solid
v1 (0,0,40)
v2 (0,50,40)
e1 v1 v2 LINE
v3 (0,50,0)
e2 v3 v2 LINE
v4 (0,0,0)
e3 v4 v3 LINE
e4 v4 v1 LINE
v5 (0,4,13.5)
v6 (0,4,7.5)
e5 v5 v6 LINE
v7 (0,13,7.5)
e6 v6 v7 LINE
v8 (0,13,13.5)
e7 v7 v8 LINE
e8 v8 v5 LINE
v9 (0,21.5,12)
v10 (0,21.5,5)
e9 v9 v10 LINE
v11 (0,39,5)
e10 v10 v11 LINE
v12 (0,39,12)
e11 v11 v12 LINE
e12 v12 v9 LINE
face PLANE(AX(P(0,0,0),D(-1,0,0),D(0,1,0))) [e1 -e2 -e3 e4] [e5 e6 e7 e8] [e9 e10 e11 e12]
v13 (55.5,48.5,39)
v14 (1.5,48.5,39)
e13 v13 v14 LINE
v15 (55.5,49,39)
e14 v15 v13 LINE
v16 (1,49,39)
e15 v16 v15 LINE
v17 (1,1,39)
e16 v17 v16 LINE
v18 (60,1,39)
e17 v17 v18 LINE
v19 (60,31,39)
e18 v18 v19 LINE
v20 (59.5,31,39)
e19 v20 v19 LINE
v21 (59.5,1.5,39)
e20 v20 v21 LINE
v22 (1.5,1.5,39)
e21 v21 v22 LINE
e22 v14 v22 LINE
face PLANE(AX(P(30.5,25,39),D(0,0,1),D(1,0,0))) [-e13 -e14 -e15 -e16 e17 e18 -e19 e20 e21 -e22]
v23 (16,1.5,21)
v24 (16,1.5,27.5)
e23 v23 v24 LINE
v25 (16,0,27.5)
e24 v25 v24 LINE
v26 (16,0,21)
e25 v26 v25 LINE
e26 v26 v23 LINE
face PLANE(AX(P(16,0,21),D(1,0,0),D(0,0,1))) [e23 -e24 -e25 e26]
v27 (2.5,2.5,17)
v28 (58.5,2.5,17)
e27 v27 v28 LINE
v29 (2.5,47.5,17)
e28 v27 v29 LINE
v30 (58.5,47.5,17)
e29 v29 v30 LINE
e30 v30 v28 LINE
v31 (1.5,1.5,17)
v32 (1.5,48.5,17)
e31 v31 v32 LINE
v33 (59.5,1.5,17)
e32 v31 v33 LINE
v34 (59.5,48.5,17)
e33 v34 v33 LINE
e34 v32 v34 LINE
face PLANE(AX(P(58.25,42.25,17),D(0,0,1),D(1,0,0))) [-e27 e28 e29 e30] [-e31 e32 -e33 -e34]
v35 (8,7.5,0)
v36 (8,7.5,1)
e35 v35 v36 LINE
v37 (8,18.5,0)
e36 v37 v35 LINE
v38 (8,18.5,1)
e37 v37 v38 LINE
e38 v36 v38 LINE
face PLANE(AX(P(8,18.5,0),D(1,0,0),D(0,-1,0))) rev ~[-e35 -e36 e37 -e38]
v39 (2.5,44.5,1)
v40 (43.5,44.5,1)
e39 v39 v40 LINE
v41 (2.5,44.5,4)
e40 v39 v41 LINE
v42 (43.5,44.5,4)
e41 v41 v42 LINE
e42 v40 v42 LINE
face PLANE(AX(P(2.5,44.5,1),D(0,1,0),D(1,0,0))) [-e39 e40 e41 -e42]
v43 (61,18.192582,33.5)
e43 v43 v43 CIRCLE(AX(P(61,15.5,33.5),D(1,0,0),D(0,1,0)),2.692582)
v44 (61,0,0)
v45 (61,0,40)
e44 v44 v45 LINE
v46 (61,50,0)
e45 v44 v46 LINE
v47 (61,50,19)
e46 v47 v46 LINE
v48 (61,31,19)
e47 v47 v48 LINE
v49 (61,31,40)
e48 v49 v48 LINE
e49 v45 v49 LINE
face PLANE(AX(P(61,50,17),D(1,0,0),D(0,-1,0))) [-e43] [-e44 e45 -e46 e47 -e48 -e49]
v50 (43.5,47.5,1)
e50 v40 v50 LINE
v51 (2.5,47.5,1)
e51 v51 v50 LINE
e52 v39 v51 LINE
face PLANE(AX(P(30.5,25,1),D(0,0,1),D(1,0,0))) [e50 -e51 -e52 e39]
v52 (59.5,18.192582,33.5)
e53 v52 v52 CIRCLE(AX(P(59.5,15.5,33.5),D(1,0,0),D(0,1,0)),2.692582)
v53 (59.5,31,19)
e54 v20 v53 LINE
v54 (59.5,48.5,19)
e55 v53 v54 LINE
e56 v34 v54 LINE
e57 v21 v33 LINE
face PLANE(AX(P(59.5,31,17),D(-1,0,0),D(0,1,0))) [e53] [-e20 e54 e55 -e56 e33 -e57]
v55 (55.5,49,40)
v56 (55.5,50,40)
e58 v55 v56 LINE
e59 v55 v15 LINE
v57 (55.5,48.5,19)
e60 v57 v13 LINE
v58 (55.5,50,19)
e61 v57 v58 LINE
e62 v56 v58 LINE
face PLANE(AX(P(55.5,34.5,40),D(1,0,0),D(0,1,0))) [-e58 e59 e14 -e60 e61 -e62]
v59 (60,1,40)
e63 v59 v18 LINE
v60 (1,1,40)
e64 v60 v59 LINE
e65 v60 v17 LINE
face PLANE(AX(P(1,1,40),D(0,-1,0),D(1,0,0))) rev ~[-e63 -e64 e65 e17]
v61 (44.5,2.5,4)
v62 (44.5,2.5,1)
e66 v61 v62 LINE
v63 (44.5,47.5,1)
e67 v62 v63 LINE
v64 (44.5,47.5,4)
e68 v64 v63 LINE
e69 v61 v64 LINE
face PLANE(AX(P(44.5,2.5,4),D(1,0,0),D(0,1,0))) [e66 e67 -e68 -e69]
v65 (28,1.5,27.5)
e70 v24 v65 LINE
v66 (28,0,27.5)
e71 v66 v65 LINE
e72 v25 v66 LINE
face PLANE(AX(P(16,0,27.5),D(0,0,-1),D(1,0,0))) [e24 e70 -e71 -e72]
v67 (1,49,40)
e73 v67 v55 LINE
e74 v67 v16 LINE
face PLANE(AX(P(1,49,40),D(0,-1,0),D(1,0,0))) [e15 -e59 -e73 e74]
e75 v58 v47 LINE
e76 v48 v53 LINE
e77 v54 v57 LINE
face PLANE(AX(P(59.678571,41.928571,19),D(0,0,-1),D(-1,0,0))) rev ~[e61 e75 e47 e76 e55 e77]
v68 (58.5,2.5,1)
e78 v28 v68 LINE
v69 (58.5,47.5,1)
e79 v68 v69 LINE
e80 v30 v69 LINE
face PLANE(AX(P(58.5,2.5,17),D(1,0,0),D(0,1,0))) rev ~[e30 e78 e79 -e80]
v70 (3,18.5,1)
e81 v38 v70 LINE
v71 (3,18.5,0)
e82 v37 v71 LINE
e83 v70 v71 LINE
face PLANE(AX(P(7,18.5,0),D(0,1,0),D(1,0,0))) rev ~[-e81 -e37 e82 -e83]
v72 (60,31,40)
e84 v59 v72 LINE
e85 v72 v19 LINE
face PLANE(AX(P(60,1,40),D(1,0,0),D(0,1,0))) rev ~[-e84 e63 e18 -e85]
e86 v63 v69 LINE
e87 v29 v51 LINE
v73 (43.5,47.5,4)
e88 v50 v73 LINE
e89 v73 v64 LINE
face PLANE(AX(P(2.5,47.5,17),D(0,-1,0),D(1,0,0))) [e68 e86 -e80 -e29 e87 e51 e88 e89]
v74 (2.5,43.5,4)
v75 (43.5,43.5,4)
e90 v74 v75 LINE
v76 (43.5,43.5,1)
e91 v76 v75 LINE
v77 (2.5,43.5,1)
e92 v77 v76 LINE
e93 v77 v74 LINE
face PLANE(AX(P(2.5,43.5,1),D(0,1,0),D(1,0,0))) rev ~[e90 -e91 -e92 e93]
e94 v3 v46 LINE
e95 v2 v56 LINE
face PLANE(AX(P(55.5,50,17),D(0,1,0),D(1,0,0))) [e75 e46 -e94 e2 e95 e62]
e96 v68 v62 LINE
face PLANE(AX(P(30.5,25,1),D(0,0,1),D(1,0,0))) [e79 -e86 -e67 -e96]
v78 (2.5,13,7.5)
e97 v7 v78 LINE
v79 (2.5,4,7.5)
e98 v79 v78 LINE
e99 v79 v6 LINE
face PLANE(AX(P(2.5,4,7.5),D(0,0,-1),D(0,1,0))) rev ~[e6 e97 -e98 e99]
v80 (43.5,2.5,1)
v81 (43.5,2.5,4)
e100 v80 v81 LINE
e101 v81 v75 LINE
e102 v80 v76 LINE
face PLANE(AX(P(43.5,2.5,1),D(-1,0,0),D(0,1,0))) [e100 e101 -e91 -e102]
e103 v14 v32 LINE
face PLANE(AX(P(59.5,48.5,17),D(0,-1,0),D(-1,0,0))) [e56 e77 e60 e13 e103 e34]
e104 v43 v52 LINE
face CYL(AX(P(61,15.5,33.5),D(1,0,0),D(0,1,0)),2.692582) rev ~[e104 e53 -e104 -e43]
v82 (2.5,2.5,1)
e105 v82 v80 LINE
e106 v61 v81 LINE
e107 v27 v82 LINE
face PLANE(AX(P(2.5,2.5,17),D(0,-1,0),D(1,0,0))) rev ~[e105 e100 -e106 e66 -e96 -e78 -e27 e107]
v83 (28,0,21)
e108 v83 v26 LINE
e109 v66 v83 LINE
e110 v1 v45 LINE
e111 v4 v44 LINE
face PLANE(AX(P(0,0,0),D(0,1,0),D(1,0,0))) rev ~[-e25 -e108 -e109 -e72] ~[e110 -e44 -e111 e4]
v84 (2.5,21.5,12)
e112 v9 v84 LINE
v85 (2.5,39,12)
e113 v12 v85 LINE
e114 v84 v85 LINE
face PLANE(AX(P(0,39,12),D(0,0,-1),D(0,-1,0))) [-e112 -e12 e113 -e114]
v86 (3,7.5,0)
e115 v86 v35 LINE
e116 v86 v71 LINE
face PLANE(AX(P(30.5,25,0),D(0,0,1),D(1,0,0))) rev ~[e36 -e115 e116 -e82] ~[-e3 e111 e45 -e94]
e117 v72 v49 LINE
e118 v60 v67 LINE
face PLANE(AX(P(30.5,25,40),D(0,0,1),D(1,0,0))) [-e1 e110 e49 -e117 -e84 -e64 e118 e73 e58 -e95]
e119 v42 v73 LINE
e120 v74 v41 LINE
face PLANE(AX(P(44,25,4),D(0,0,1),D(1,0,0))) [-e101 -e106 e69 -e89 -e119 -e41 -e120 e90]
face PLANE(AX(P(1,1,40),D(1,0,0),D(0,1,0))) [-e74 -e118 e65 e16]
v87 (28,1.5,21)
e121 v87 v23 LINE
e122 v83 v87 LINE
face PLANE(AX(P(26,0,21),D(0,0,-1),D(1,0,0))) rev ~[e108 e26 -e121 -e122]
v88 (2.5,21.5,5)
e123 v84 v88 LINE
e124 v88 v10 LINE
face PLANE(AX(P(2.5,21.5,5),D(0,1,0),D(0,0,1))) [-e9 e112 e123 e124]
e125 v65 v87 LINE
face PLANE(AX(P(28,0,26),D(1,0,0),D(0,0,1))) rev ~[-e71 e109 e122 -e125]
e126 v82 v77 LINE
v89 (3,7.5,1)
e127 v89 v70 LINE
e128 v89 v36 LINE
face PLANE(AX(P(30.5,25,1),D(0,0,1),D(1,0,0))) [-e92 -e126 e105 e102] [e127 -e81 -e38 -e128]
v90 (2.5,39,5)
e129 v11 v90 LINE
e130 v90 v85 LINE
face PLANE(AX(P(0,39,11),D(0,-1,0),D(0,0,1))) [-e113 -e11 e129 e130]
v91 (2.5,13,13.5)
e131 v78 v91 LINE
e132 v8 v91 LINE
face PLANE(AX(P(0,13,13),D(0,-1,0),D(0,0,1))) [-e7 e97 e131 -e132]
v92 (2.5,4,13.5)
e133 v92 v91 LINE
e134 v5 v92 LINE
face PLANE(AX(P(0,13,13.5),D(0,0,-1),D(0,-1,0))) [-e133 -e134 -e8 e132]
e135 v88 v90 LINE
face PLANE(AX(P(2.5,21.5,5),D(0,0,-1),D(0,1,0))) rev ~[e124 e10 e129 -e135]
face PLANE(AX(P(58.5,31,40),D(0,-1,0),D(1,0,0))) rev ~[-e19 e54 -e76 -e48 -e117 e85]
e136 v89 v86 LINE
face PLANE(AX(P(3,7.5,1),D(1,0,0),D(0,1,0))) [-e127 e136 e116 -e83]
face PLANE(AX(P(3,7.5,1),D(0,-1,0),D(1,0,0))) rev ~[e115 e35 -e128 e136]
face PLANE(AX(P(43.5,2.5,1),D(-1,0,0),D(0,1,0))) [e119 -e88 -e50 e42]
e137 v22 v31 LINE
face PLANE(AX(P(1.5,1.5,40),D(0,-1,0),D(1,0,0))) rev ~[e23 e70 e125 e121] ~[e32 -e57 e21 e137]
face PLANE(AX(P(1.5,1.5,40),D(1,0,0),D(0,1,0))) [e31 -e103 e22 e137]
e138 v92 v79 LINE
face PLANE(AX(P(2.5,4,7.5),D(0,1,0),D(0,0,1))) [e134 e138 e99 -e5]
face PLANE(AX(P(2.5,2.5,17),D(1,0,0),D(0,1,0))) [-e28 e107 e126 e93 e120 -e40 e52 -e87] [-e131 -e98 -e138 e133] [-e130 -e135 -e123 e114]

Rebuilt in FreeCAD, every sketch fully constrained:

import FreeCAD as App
import Part
import Sketcher
Q = App.Units.Quantity


def add_polygon(sketch, points):
    """Adds a closed chain of lines whose ends are joined by coincident constraints."""
    first, n = sketch.GeometryCount, len(points)
    for a, b in zip(points, points[1:] + points[:1]):
        sketch.addGeometry(Part.LineSegment(App.Vector(*a, 0), App.Vector(*b, 0)), False)
    for i in range(n):
        sketch.addConstraint(Sketcher.Constraint("Coincident", first + i, 2, first + (i + 1) % n, 1))

doc = App.newDocument("Part")
body = doc.addObject("PartDesign::Body", "Body")

sketch1 = doc.addObject("Sketcher::SketchObject", "Sketch")
body.addObject(sketch1)
sketch1.AttachmentSupport = (doc.XY_Plane, [""])
sketch1.MapMode = "FlatFace"
add_polygon(sketch1, [(0, 50), (0, 0), (61, 0), (61, 50)])
sketch1.addConstraint(Sketcher.Constraint("Vertical", 0))
sketch1.addConstraint(Sketcher.Constraint("Horizontal", 1))
sketch1.addConstraint(Sketcher.Constraint("Vertical", 2))
sketch1.addConstraint(Sketcher.Constraint("Horizontal", 3))
sketch1.addConstraint(Sketcher.Constraint("Coincident", 0, 2, -1, 1))
sketch1.addConstraint(Sketcher.Constraint("DistanceX", 1, 1, 1, 2, Q("61 mm")))
sketch1.addConstraint(Sketcher.Constraint("DistanceY", 0, 2, 0, 1, Q("50 mm")))
pad1 = doc.addObject("PartDesign::Pad", "Pad")
body.addObject(pad1)
pad1.Profile = sketch1
pad1.Length = 40

sketch2 = doc.addObject("Sketcher::SketchObject", "Sketch001")
body.addObject(sketch2)
sketch2.AttachmentSupport = (doc.XY_Plane, [""])
sketch2.MapMode = "FlatFace"
sketch2.AttachmentOffset = App.Placement(App.Vector(0, 0, 40), App.Rotation())
add_polygon(sketch2, [(2, 48), (2, 2), (60, 2), (60, 48)])
sketch2.addConstraint(Sketcher.Constraint("Vertical", 0))
sketch2.addConstraint(Sketcher.Constraint("Horizontal", 1))
sketch2.addConstraint(Sketcher.Constraint("Vertical", 2))
sketch2.addConstraint(Sketcher.Constraint("Horizontal", 3))
sketch2.addConstraint(Sketcher.Constraint("DistanceX", 1, 1, 1, 2, Q("58 mm")))
sketch2.addConstraint(Sketcher.Constraint("DistanceY", 0, 2, 0, 1, Q("47 mm")))
sketch2.addConstraint(Sketcher.Constraint("DistanceX", -1, 1, 0, 2, Q("1.5 mm")))
sketch2.addConstraint(Sketcher.Constraint("DistanceY", -1, 1, 0, 2, Q("1.5 mm")))
pocket1 = doc.addObject("PartDesign::Pocket", "Pocket")
body.addObject(pocket1)
pocket1.Profile = sketch2
pocket1.Length = 23

sketch3 = doc.addObject("Sketcher::SketchObject", "Sketch002")
body.addObject(sketch3)
sketch3.AttachmentSupport = (doc.XY_Plane, [""])
sketch3.MapMode = "FlatFace"
sketch3.AttachmentOffset = App.Placement(App.Vector(0, 0, 17), App.Rotation())
add_polygon(sketch3, [(2, 48), (2, 2), (58, 2), (58, 48)])
sketch3.addConstraint(Sketcher.Constraint("Vertical", 0))
sketch3.addConstraint(Sketcher.Constraint("Horizontal", 1))
sketch3.addConstraint(Sketcher.Constraint("Vertical", 2))
sketch3.addConstraint(Sketcher.Constraint("Horizontal", 3))
sketch3.addConstraint(Sketcher.Constraint("DistanceX", 1, 1, 1, 2, Q("56 mm")))
sketch3.addConstraint(Sketcher.Constraint("DistanceY", 0, 2, 0, 1, Q("45 mm")))
sketch3.addConstraint(Sketcher.Constraint("DistanceX", -1, 1, 0, 2, Q("2.5 mm")))
sketch3.addConstraint(Sketcher.Constraint("DistanceY", -1, 1, 0, 2, Q("2.5 mm")))
pocket2 = doc.addObject("PartDesign::Pocket", "Pocket001")
body.addObject(pocket2)
pocket2.Profile = sketch3
pocket2.Length = 16

sketch4 = doc.addObject("Sketcher::SketchObject", "Sketch003")
body.addObject(sketch4)
sketch4.AttachmentSupport = (doc.XY_Plane, [""])
sketch4.MapMode = "FlatFace"
sketch4.AttachmentOffset = App.Placement(App.Vector(0, 0, 1), App.Rotation())
add_polygon(sketch4, [(44.5, 47.5), (44.5, 2.5), (45.5, 2.5), (45.5, 47.5)])
sketch4.addConstraint(Sketcher.Constraint("Vertical", 0))
sketch4.addConstraint(Sketcher.Constraint("Horizontal", 1))
sketch4.addConstraint(Sketcher.Constraint("Vertical", 2))
sketch4.addConstraint(Sketcher.Constraint("Horizontal", 3))
sketch4.addConstraint(Sketcher.Constraint("DistanceX", 1, 1, 1, 2, Q("1 mm")))
sketch4.addConstraint(Sketcher.Constraint("DistanceY", 0, 2, 0, 1, Q("45 mm")))
sketch4.addConstraint(Sketcher.Constraint("DistanceX", -1, 1, 0, 2, Q("44.5 mm")))
sketch4.addConstraint(Sketcher.Constraint("DistanceY", -1, 1, 0, 2, Q("2.5 mm")))
pad2 = doc.addObject("PartDesign::Pad", "Pad001")
body.addObject(pad2)
pad2.Profile = sketch4
pad2.Length = 3

sketch5 = doc.addObject("Sketcher::SketchObject", "Sketch004")
body.addObject(sketch5)
sketch5.AttachmentSupport = (doc.XY_Plane, [""])
sketch5.MapMode = "FlatFace"
sketch5.AttachmentOffset = App.Placement(App.Vector(0, 0, 1), App.Rotation())
add_polygon(sketch5, [(3, 18.5), (3, 7.5), (7, 7.5), (7, 18.5)])
sketch5.addConstraint(Sketcher.Constraint("Vertical", 0))
sketch5.addConstraint(Sketcher.Constraint("Horizontal", 1))
sketch5.addConstraint(Sketcher.Constraint("Vertical", 2))
sketch5.addConstraint(Sketcher.Constraint("Horizontal", 3))
sketch5.addConstraint(Sketcher.Constraint("DistanceX", 1, 1, 1, 2, Q("4 mm")))
sketch5.addConstraint(Sketcher.Constraint("DistanceY", 0, 2, 0, 1, Q("11 mm")))
sketch5.addConstraint(Sketcher.Constraint("DistanceX", -1, 1, 0, 2, Q("3 mm")))
sketch5.addConstraint(Sketcher.Constraint("DistanceY", -1, 1, 0, 2, Q("7.5 mm")))
pocket3 = doc.addObject("PartDesign::Pocket", "Pocket002")
body.addObject(pocket3)
pocket3.Profile = sketch5
pocket3.Length = 5

sketch6 = doc.addObject("Sketcher::SketchObject", "Sketch005")
body.addObject(sketch6)
sketch6.AttachmentSupport = (doc.XY_Plane, [""])
sketch6.MapMode = "FlatFace"
sketch6.AttachmentOffset = App.Placement(App.Vector(0, 0, 40), App.Rotation())
add_polygon(sketch6, [(56, 50), (56, 34), (61, 34), (61, 50)])
sketch6.addConstraint(Sketcher.Constraint("Vertical", 0))
sketch6.addConstraint(Sketcher.Constraint("Horizontal", 1))
sketch6.addConstraint(Sketcher.Constraint("Vertical", 2))
sketch6.addConstraint(Sketcher.Constraint("Horizontal", 3))
sketch6.addConstraint(Sketcher.Constraint("DistanceX", 1, 1, 1, 2, Q("5.5 mm")))
sketch6.addConstraint(Sketcher.Constraint("DistanceY", 0, 2, 0, 1, Q("15.5 mm")))
sketch6.addConstraint(Sketcher.Constraint("DistanceX", -1, 1, 1, 2, Q("61 mm")))
sketch6.addConstraint(Sketcher.Constraint("DistanceY", -1, 1, 2, 2, Q("50 mm")))
pocket4 = doc.addObject("PartDesign::Pocket", "Pocket003")
body.addObject(pocket4)
pocket4.Profile = sketch6
pocket4.Length = 23

sketch7 = doc.addObject("Sketcher::SketchObject", "Sketch006")
body.addObject(sketch7)
sketch7.AttachmentSupport = (doc.XY_Plane, [""])
sketch7.MapMode = "FlatFace"
sketch7.AttachmentOffset = App.Placement(App.Vector(0, 0, 40), App.Rotation())
add_polygon(sketch7, [(1, 49), (1, 1), (60, 1), (60, 49)])
sketch7.addConstraint(Sketcher.Constraint("Vertical", 0))
sketch7.addConstraint(Sketcher.Constraint("Horizontal", 1))
sketch7.addConstraint(Sketcher.Constraint("Vertical", 2))
sketch7.addConstraint(Sketcher.Constraint("Horizontal", 3))
sketch7.addConstraint(Sketcher.Constraint("DistanceX", 1, 1, 1, 2, Q("59 mm")))
sketch7.addConstraint(Sketcher.Constraint("DistanceY", 0, 2, 0, 1, Q("48 mm")))
sketch7.addConstraint(Sketcher.Constraint("DistanceX", -1, 1, 0, 2, Q("1 mm")))
sketch7.addConstraint(Sketcher.Constraint("DistanceY", -1, 1, 0, 2, Q("1 mm")))
pocket5 = doc.addObject("PartDesign::Pocket", "Pocket004")
body.addObject(pocket5)
pocket5.Profile = sketch7
pocket5.Length = 1

sketch8 = doc.addObject("Sketcher::SketchObject", "Sketch007")
body.addObject(sketch8)
sketch8.AttachmentSupport = (doc.XY_Plane, [""])
sketch8.MapMode = "FlatFace"
sketch8.AttachmentOffset = App.Placement(App.Vector(0, 0, 40), App.Rotation())
add_polygon(sketch8, [(58.5, 34.5), (58.5, 31), (61, 31), (61, 34.5)])
sketch8.addConstraint(Sketcher.Constraint("Vertical", 0))
sketch8.addConstraint(Sketcher.Constraint("Horizontal", 1))
sketch8.addConstraint(Sketcher.Constraint("Vertical", 2))
sketch8.addConstraint(Sketcher.Constraint("Horizontal", 3))
sketch8.addConstraint(Sketcher.Constraint("DistanceX", 1, 1, 1, 2, Q("2.5 mm")))
sketch8.addConstraint(Sketcher.Constraint("DistanceY", 0, 2, 0, 1, Q("3.5 mm")))
sketch8.addConstraint(Sketcher.Constraint("DistanceY", -1, 1, 0, 2, Q("31 mm")))
sketch8.addConstraint(Sketcher.Constraint("DistanceX", -1, 1, 1, 2, Q("61 mm")))
pocket6 = doc.addObject("PartDesign::Pocket", "Pocket005")
body.addObject(pocket6)
pocket6.Profile = sketch8
pocket6.Length = 23

sketch9 = doc.addObject("Sketcher::SketchObject", "Sketch008")
body.addObject(sketch9)
sketch9.AttachmentSupport = (doc.XZ_Plane, [""])
sketch9.MapMode = "FlatFace"
add_polygon(sketch9, [(16, 26), (16, 21), (26, 21), (26, 26)])
sketch9.addConstraint(Sketcher.Constraint("Vertical", 0))
sketch9.addConstraint(Sketcher.Constraint("Horizontal", 1))
sketch9.addConstraint(Sketcher.Constraint("Vertical", 2))
sketch9.addConstraint(Sketcher.Constraint("Horizontal", 3))
sketch9.addConstraint(Sketcher.Constraint("DistanceX", 1, 1, 1, 2, Q("10 mm")))
sketch9.addConstraint(Sketcher.Constraint("DistanceY", 0, 2, 0, 1, Q("5 mm")))
sketch9.addConstraint(Sketcher.Constraint("DistanceX", -1, 1, 0, 2, Q("16 mm")))
sketch9.addConstraint(Sketcher.Constraint("DistanceY", -1, 1, 0, 2, Q("21 mm")))
pocket7 = doc.addObject("PartDesign::Pocket", "Pocket006")
body.addObject(pocket7)
pocket7.Profile = sketch9
pocket7.Length = 5

sketch10 = doc.addObject("Sketcher::SketchObject", "Sketch009")
body.addObject(sketch10)
sketch10.AttachmentSupport = (doc.XY_Plane, [""])
sketch10.MapMode = "FlatFace"
sketch10.AttachmentOffset = App.Placement(App.Vector(0, 0, 17), App.Rotation())
add_polygon(sketch10, [(61, 50), (55.5, 50), (55.5, 48.5), (59.5, 48.5), (59.5, 31), (61, 31)])
sketch10.addConstraint(Sketcher.Constraint("Horizontal", 0))
sketch10.addConstraint(Sketcher.Constraint("Vertical", 1))
sketch10.addConstraint(Sketcher.Constraint("Horizontal", 2))
sketch10.addConstraint(Sketcher.Constraint("Vertical", 3))
sketch10.addConstraint(Sketcher.Constraint("Horizontal", 4))
sketch10.addConstraint(Sketcher.Constraint("Vertical", 5))
sketch10.addConstraint(Sketcher.Constraint("Equal", 4, 1))
sketch10.addConstraint(Sketcher.Constraint("DistanceX", 2, 1, 2, 2, Q("4 mm")))
sketch10.addConstraint(Sketcher.Constraint("DistanceY", 5, 1, 5, 2, Q("19 mm")))
sketch10.addConstraint(Sketcher.Constraint("DistanceX", 0, 2, 0, 1, Q("5.5 mm")))
sketch10.addConstraint(Sketcher.Constraint("DistanceY", -1, 1, 0, 2, Q("50 mm")))
sketch10.addConstraint(Sketcher.Constraint("DistanceX", -1, 1, 4, 2, Q("61 mm")))
pad3 = doc.addObject("PartDesign::Pad", "Pad002")
body.addObject(pad3)
pad3.Profile = sketch10
pad3.Length = 2

sketch11 = doc.addObject("Sketcher::SketchObject", "Sketch010")
body.addObject(sketch11)
sketch11.AttachmentSupport = (doc.YZ_Plane, [""])
sketch11.MapMode = "FlatFace"
sketch11.AttachmentOffset = App.Placement(App.Vector(0, 0, 2.5), App.Rotation())
add_polygon(sketch11, [(4, 12), (4, 7.5), (12, 7.5), (12, 12)])
sketch11.addConstraint(Sketcher.Constraint("Vertical", 0))
sketch11.addConstraint(Sketcher.Constraint("Horizontal", 1))
sketch11.addConstraint(Sketcher.Constraint("Vertical", 2))
sketch11.addConstraint(Sketcher.Constraint("Horizontal", 3))
sketch11.addConstraint(Sketcher.Constraint("DistanceX", 1, 1, 1, 2, Q("8 mm")))
sketch11.addConstraint(Sketcher.Constraint("DistanceY", 0, 2, 0, 1, Q("4.5 mm")))
sketch11.addConstraint(Sketcher.Constraint("DistanceX", -1, 1, 0, 2, Q("4 mm")))
sketch11.addConstraint(Sketcher.Constraint("DistanceY", -1, 1, 2, 2, Q("12 mm")))
pocket8 = doc.addObject("PartDesign::Pocket", "Pocket007")
body.addObject(pocket8)
pocket8.Profile = sketch11
pocket8.Length = 5

sketch12 = doc.addObject("Sketcher::SketchObject", "Sketch011")
body.addObject(sketch12)
sketch12.AttachmentSupport = (doc.YZ_Plane, [""])
sketch12.MapMode = "FlatFace"
sketch12.AttachmentOffset = App.Placement(App.Vector(0, 0, 2.5), App.Rotation())
add_polygon(sketch12, [(22, 11), (22, 5), (37, 5), (37, 11)])
sketch12.addConstraint(Sketcher.Constraint("Vertical", 0))
sketch12.addConstraint(Sketcher.Constraint("Horizontal", 1))
sketch12.addConstraint(Sketcher.Constraint("Vertical", 2))
sketch12.addConstraint(Sketcher.Constraint("Horizontal", 3))
sketch12.addConstraint(Sketcher.Constraint("DistanceY", 0, 2, 0, 1, Q("6 mm")))
sketch12.addConstraint(Sketcher.Constraint("DistanceX", 1, 1, 1, 2, Q("15.5 mm")))
sketch12.addConstraint(Sketcher.Constraint("DistanceY", -1, 1, 0, 2, Q("5 mm")))
sketch12.addConstraint(Sketcher.Constraint("DistanceX", -1, 1, 1, 2, Q("37 mm")))
pocket9 = doc.addObject("PartDesign::Pocket", "Pocket008")
body.addObject(pocket9)
pocket9.Profile = sketch12
pocket9.Length = 5

sketch13 = doc.addObject("Sketcher::SketchObject", "Sketch012")
body.addObject(sketch13)
sketch13.AttachmentSupport = (doc.YZ_Plane, [""])
sketch13.MapMode = "FlatFace"
add_polygon(sketch13, [(13, 13), (13, 12), (4, 12), (4, 13)])
sketch13.addConstraint(Sketcher.Constraint("Vertical", 0))
sketch13.addConstraint(Sketcher.Constraint("Horizontal", 1))
sketch13.addConstraint(Sketcher.Constraint("Vertical", 2))
sketch13.addConstraint(Sketcher.Constraint("Horizontal", 3))
sketch13.addConstraint(Sketcher.Constraint("DistanceX", 1, 2, 1, 1, Q("9 mm")))
sketch13.addConstraint(Sketcher.Constraint("DistanceY", 0, 2, 0, 1, Q("1 mm")))
sketch13.addConstraint(Sketcher.Constraint("DistanceX", -1, 1, 0, 2, Q("13 mm")))
sketch13.addConstraint(Sketcher.Constraint("DistanceY", -1, 1, 0, 2, Q("12 mm")))
pocket10 = doc.addObject("PartDesign::Pocket", "Pocket009")
body.addObject(pocket10)
pocket10.Profile = sketch13
pocket10.Length = 3
pocket10.Reversed = True

sketch14 = doc.addObject("Sketcher::SketchObject", "Sketch013")
body.addObject(sketch14)
sketch14.AttachmentSupport = (doc.YZ_Plane, [""])
sketch14.MapMode = "FlatFace"
add_polygon(sketch14, [(13, 12), (13, 7.5), (12, 7.5), (12, 12)])
sketch14.addConstraint(Sketcher.Constraint("Vertical", 0))
sketch14.addConstraint(Sketcher.Constraint("Horizontal", 1))
sketch14.addConstraint(Sketcher.Constraint("Vertical", 2))
sketch14.addConstraint(Sketcher.Constraint("Horizontal", 3))
sketch14.addConstraint(Sketcher.Constraint("DistanceX", 1, 2, 1, 1, Q("1 mm")))
sketch14.addConstraint(Sketcher.Constraint("DistanceY", 0, 2, 0, 1, Q("4.5 mm")))
sketch14.addConstraint(Sketcher.Constraint("DistanceX", -1, 1, 0, 2, Q("13 mm")))
sketch14.addConstraint(Sketcher.Constraint("DistanceY", -1, 1, 2, 2, Q("12 mm")))
pocket11 = doc.addObject("PartDesign::Pocket", "Pocket010")
body.addObject(pocket11)
pocket11.Profile = sketch14
pocket11.Length = 5
pocket11.Reversed = True

sketch15 = doc.addObject("Sketcher::SketchObject", "Sketch014")
body.addObject(sketch15)
sketch15.AttachmentSupport = (doc.YZ_Plane, [""])
sketch15.MapMode = "FlatFace"
add_polygon(sketch15, [(13, 13.5), (13, 13), (4, 13), (4, 13.5)])
sketch15.addConstraint(Sketcher.Constraint("Vertical", 0))
sketch15.addConstraint(Sketcher.Constraint("Horizontal", 1))
sketch15.addConstraint(Sketcher.Constraint("Vertical", 2))
sketch15.addConstraint(Sketcher.Constraint("Horizontal", 3))
sketch15.addConstraint(Sketcher.Constraint("DistanceX", 1, 2, 1, 1, Q("9 mm")))
sketch15.addConstraint(Sketcher.Constraint("DistanceY", 0, 2, 0, 1, Q("0.5 mm")))
sketch15.addConstraint(Sketcher.Constraint("DistanceX", -1, 1, 0, 2, Q("13 mm")))
sketch15.addConstraint(Sketcher.Constraint("DistanceY", -1, 1, 0, 2, Q("13 mm")))
pocket12 = doc.addObject("PartDesign::Pocket", "Pocket011")
body.addObject(pocket12)
pocket12.Profile = sketch15
pocket12.Length = 5
pocket12.Reversed = True

sketch16 = doc.addObject("Sketcher::SketchObject", "Sketch015")
body.addObject(sketch16)
sketch16.AttachmentSupport = (doc.YZ_Plane, [""])
sketch16.MapMode = "FlatFace"
add_polygon(sketch16, [(39, 12), (39, 11), (21.5, 11), (21.5, 12)])
sketch16.addConstraint(Sketcher.Constraint("Vertical", 0))
sketch16.addConstraint(Sketcher.Constraint("Horizontal", 1))
sketch16.addConstraint(Sketcher.Constraint("Vertical", 2))
sketch16.addConstraint(Sketcher.Constraint("Horizontal", 3))
sketch16.addConstraint(Sketcher.Constraint("DistanceY", 0, 2, 0, 1, Q("1 mm")))
sketch16.addConstraint(Sketcher.Constraint("DistanceX", 1, 2, 1, 1, Q("17.5 mm")))
sketch16.addConstraint(Sketcher.Constraint("DistanceX", -1, 1, 0, 2, Q("39 mm")))
sketch16.addConstraint(Sketcher.Constraint("DistanceY", -1, 1, 0, 2, Q("11 mm")))
pocket13 = doc.addObject("PartDesign::Pocket", "Pocket012")
body.addObject(pocket13)
pocket13.Profile = sketch16
pocket13.Length = 5
pocket13.Reversed = True

sketch17 = doc.addObject("Sketcher::SketchObject", "Sketch016")
body.addObject(sketch17)
sketch17.AttachmentSupport = (doc.YZ_Plane, [""])
sketch17.MapMode = "FlatFace"
add_polygon(sketch17, [(39, 11), (39, 5), (37, 5), (37, 11)])
sketch17.addConstraint(Sketcher.Constraint("Vertical", 0))
sketch17.addConstraint(Sketcher.Constraint("Horizontal", 1))
sketch17.addConstraint(Sketcher.Constraint("Vertical", 2))
sketch17.addConstraint(Sketcher.Constraint("Horizontal", 3))
sketch17.addConstraint(Sketcher.Constraint("DistanceX", 1, 2, 1, 1, Q("2 mm")))
sketch17.addConstraint(Sketcher.Constraint("DistanceY", 0, 2, 0, 1, Q("6 mm")))
sketch17.addConstraint(Sketcher.Constraint("DistanceX", -1, 1, 0, 2, Q("39 mm")))
sketch17.addConstraint(Sketcher.Constraint("DistanceY", -1, 1, 0, 2, Q("5 mm")))
pocket14 = doc.addObject("PartDesign::Pocket", "Pocket013")
body.addObject(pocket14)
pocket14.Profile = sketch17
pocket14.Length = 5
pocket14.Reversed = True

sketch18 = doc.addObject("Sketcher::SketchObject", "Sketch017")
body.addObject(sketch18)
sketch18.AttachmentSupport = (doc.XY_Plane, [""])
sketch18.MapMode = "FlatFace"
add_polygon(sketch18, [(7, 7.5), (7, 18.5), (8, 18.5), (8, 7.5)])
sketch18.addConstraint(Sketcher.Constraint("Vertical", 0))
sketch18.addConstraint(Sketcher.Constraint("Horizontal", 1))
sketch18.addConstraint(Sketcher.Constraint("Vertical", 2))
sketch18.addConstraint(Sketcher.Constraint("Horizontal", 3))
sketch18.addConstraint(Sketcher.Constraint("DistanceX", 1, 1, 1, 2, Q("1 mm")))
sketch18.addConstraint(Sketcher.Constraint("DistanceY", 0, 1, 0, 2, Q("11 mm")))
sketch18.addConstraint(Sketcher.Constraint("DistanceX", -1, 1, 0, 2, Q("7 mm")))
sketch18.addConstraint(Sketcher.Constraint("DistanceY", -1, 1, 0, 2, Q("18.5 mm")))
pocket15 = doc.addObject("PartDesign::Pocket", "Pocket014")
body.addObject(pocket15)
pocket15.Profile = sketch18
pocket15.Length = 5
pocket15.Reversed = True

sketch19 = doc.addObject("Sketcher::SketchObject", "Sketch018")
body.addObject(sketch19)
sketch19.AttachmentSupport = (doc.XZ_Plane, [""])
sketch19.MapMode = "FlatFace"
add_polygon(sketch19, [(16, 27.5), (16, 26), (28, 26), (28, 27.5)])
sketch19.addConstraint(Sketcher.Constraint("Vertical", 0))
sketch19.addConstraint(Sketcher.Constraint("Horizontal", 1))
sketch19.addConstraint(Sketcher.Constraint("Vertical", 2))
sketch19.addConstraint(Sketcher.Constraint("Horizontal", 3))
sketch19.addConstraint(Sketcher.Constraint("DistanceX", 1, 1, 1, 2, Q("12 mm")))
sketch19.addConstraint(Sketcher.Constraint("DistanceY", 0, 2, 0, 1, Q("1.5 mm")))
sketch19.addConstraint(Sketcher.Constraint("DistanceX", -1, 1, 0, 2, Q("16 mm")))
sketch19.addConstraint(Sketcher.Constraint("DistanceY", -1, 1, 0, 2, Q("26 mm")))
pocket16 = doc.addObject("PartDesign::Pocket", "Pocket015")
body.addObject(pocket16)
pocket16.Profile = sketch19
pocket16.Length = 5

sketch20 = doc.addObject("Sketcher::SketchObject", "Sketch019")
body.addObject(sketch20)
sketch20.AttachmentSupport = (doc.XZ_Plane, [""])
sketch20.MapMode = "FlatFace"
add_polygon(sketch20, [(26, 26), (26, 21), (28, 21), (28, 26)])
sketch20.addConstraint(Sketcher.Constraint("Vertical", 0))
sketch20.addConstraint(Sketcher.Constraint("Horizontal", 1))
sketch20.addConstraint(Sketcher.Constraint("Vertical", 2))
sketch20.addConstraint(Sketcher.Constraint("Horizontal", 3))
sketch20.addConstraint(Sketcher.Constraint("DistanceX", 1, 1, 1, 2, Q("2 mm")))
sketch20.addConstraint(Sketcher.Constraint("DistanceY", 0, 2, 0, 1, Q("5 mm")))
sketch20.addConstraint(Sketcher.Constraint("DistanceX", -1, 1, 0, 2, Q("26 mm")))
sketch20.addConstraint(Sketcher.Constraint("DistanceY", -1, 1, 0, 2, Q("21 mm")))
pocket17 = doc.addObject("PartDesign::Pocket", "Pocket016")
body.addObject(pocket17)
pocket17.Profile = sketch20
pocket17.Length = 5

sketch21 = doc.addObject("Sketcher::SketchObject", "Sketch020")
body.addObject(sketch21)
sketch21.AttachmentSupport = (doc.YZ_Plane, [""])
sketch21.MapMode = "FlatFace"
sketch21.AttachmentOffset = App.Placement(App.Vector(0, 0, 61), App.Rotation())
sketch21.addGeometry(Part.Circle(App.Vector(15.5, 33.5, 0), App.Vector(0, 0, 1), 2.7), False)
sketch21.addConstraint(Sketcher.Constraint("DistanceX", -1, 1, 0, 3, Q("15.5 mm")))
sketch21.addConstraint(Sketcher.Constraint("DistanceY", -1, 1, 0, 3, Q("33.5 mm")))
sketch21.addConstraint(Sketcher.Constraint("Diameter", 0, Q("5.385164 mm")))
pocket18 = doc.addObject("PartDesign::Pocket", "Pocket017")
body.addObject(pocket18)
pocket18.Profile = sketch21
pocket18.Length = 5

sketch22 = doc.addObject("Sketcher::SketchObject", "Sketch021")
body.addObject(sketch22)
sketch22.AttachmentSupport = (doc.XY_Plane, [""])
sketch22.MapMode = "FlatFace"
sketch22.AttachmentOffset = App.Placement(App.Vector(0, 0, 1), App.Rotation())
add_polygon(sketch22, [(43.5, 47.5), (43.5, 2.5), (44.5, 2.5), (44.5, 47.5)])
sketch22.addConstraint(Sketcher.Constraint("Vertical", 0))
sketch22.addConstraint(Sketcher.Constraint("Horizontal", 1))
sketch22.addConstraint(Sketcher.Constraint("Vertical", 2))
sketch22.addConstraint(Sketcher.Constraint("Horizontal", 3))
sketch22.addConstraint(Sketcher.Constraint("DistanceX", 1, 1, 1, 2, Q("1 mm")))
sketch22.addConstraint(Sketcher.Constraint("DistanceY", 0, 2, 0, 1, Q("45 mm")))
sketch22.addConstraint(Sketcher.Constraint("DistanceX", -1, 1, 0, 2, Q("43.5 mm")))
sketch22.addConstraint(Sketcher.Constraint("DistanceY", -1, 1, 0, 2, Q("2.5 mm")))
pad4 = doc.addObject("PartDesign::Pad", "Pad003")
body.addObject(pad4)
pad4.Profile = sketch22
pad4.Length = 3

sketch23 = doc.addObject("Sketcher::SketchObject", "Sketch022")
body.addObject(sketch23)
sketch23.AttachmentSupport = (doc.XY_Plane, [""])
sketch23.MapMode = "FlatFace"
sketch23.AttachmentOffset = App.Placement(App.Vector(0, 0, 1), App.Rotation())
add_polygon(sketch23, [(2.5, 44.5), (2.5, 43.5), (43.5, 43.5), (43.5, 44.5)])
sketch23.addConstraint(Sketcher.Constraint("Vertical", 0))
sketch23.addConstraint(Sketcher.Constraint("Horizontal", 1))
sketch23.addConstraint(Sketcher.Constraint("Vertical", 2))
sketch23.addConstraint(Sketcher.Constraint("Horizontal", 3))
sketch23.addConstraint(Sketcher.Constraint("DistanceX", 1, 1, 1, 2, Q("41 mm")))
sketch23.addConstraint(Sketcher.Constraint("DistanceY", 0, 2, 0, 1, Q("1 mm")))
sketch23.addConstraint(Sketcher.Constraint("DistanceX", -1, 1, 0, 2, Q("2.5 mm")))
sketch23.addConstraint(Sketcher.Constraint("DistanceY", -1, 1, 0, 2, Q("43.5 mm")))
pad5 = doc.addObject("PartDesign::Pad", "Pad004")
body.addObject(pad5)
pad5.Profile = sketch23
pad5.Length = 3

sketch24 = doc.addObject("Sketcher::SketchObject", "Sketch023")
body.addObject(sketch24)
sketch24.AttachmentSupport = (doc.XY_Plane, [""])
sketch24.MapMode = "FlatFace"
sketch24.AttachmentOffset = App.Placement(App.Vector(0, 0, 4), App.Rotation())
add_polygon(sketch24, [(44.5, 47.5), (44.5, 2.5), (45.5, 2.5), (45.5, 47.5)])
sketch24.addConstraint(Sketcher.Constraint("Vertical", 0))
sketch24.addConstraint(Sketcher.Constraint("Horizontal", 1))
sketch24.addConstraint(Sketcher.Constraint("Vertical", 2))
sketch24.addConstraint(Sketcher.Constraint("Horizontal", 3))
sketch24.addConstraint(Sketcher.Constraint("DistanceX", 1, 1, 1, 2, Q("1 mm")))
sketch24.addConstraint(Sketcher.Constraint("DistanceY", 0, 2, 0, 1, Q("45 mm")))
sketch24.addConstraint(Sketcher.Constraint("DistanceX", -1, 1, 0, 2, Q("44.5 mm")))
sketch24.addConstraint(Sketcher.Constraint("DistanceY", -1, 1, 0, 2, Q("2.5 mm")))
pocket19 = doc.addObject("PartDesign::Pocket", "Pocket018")
body.addObject(pocket19)
pocket19.Profile = sketch24
pocket19.Length = 3

doc.recompute()
